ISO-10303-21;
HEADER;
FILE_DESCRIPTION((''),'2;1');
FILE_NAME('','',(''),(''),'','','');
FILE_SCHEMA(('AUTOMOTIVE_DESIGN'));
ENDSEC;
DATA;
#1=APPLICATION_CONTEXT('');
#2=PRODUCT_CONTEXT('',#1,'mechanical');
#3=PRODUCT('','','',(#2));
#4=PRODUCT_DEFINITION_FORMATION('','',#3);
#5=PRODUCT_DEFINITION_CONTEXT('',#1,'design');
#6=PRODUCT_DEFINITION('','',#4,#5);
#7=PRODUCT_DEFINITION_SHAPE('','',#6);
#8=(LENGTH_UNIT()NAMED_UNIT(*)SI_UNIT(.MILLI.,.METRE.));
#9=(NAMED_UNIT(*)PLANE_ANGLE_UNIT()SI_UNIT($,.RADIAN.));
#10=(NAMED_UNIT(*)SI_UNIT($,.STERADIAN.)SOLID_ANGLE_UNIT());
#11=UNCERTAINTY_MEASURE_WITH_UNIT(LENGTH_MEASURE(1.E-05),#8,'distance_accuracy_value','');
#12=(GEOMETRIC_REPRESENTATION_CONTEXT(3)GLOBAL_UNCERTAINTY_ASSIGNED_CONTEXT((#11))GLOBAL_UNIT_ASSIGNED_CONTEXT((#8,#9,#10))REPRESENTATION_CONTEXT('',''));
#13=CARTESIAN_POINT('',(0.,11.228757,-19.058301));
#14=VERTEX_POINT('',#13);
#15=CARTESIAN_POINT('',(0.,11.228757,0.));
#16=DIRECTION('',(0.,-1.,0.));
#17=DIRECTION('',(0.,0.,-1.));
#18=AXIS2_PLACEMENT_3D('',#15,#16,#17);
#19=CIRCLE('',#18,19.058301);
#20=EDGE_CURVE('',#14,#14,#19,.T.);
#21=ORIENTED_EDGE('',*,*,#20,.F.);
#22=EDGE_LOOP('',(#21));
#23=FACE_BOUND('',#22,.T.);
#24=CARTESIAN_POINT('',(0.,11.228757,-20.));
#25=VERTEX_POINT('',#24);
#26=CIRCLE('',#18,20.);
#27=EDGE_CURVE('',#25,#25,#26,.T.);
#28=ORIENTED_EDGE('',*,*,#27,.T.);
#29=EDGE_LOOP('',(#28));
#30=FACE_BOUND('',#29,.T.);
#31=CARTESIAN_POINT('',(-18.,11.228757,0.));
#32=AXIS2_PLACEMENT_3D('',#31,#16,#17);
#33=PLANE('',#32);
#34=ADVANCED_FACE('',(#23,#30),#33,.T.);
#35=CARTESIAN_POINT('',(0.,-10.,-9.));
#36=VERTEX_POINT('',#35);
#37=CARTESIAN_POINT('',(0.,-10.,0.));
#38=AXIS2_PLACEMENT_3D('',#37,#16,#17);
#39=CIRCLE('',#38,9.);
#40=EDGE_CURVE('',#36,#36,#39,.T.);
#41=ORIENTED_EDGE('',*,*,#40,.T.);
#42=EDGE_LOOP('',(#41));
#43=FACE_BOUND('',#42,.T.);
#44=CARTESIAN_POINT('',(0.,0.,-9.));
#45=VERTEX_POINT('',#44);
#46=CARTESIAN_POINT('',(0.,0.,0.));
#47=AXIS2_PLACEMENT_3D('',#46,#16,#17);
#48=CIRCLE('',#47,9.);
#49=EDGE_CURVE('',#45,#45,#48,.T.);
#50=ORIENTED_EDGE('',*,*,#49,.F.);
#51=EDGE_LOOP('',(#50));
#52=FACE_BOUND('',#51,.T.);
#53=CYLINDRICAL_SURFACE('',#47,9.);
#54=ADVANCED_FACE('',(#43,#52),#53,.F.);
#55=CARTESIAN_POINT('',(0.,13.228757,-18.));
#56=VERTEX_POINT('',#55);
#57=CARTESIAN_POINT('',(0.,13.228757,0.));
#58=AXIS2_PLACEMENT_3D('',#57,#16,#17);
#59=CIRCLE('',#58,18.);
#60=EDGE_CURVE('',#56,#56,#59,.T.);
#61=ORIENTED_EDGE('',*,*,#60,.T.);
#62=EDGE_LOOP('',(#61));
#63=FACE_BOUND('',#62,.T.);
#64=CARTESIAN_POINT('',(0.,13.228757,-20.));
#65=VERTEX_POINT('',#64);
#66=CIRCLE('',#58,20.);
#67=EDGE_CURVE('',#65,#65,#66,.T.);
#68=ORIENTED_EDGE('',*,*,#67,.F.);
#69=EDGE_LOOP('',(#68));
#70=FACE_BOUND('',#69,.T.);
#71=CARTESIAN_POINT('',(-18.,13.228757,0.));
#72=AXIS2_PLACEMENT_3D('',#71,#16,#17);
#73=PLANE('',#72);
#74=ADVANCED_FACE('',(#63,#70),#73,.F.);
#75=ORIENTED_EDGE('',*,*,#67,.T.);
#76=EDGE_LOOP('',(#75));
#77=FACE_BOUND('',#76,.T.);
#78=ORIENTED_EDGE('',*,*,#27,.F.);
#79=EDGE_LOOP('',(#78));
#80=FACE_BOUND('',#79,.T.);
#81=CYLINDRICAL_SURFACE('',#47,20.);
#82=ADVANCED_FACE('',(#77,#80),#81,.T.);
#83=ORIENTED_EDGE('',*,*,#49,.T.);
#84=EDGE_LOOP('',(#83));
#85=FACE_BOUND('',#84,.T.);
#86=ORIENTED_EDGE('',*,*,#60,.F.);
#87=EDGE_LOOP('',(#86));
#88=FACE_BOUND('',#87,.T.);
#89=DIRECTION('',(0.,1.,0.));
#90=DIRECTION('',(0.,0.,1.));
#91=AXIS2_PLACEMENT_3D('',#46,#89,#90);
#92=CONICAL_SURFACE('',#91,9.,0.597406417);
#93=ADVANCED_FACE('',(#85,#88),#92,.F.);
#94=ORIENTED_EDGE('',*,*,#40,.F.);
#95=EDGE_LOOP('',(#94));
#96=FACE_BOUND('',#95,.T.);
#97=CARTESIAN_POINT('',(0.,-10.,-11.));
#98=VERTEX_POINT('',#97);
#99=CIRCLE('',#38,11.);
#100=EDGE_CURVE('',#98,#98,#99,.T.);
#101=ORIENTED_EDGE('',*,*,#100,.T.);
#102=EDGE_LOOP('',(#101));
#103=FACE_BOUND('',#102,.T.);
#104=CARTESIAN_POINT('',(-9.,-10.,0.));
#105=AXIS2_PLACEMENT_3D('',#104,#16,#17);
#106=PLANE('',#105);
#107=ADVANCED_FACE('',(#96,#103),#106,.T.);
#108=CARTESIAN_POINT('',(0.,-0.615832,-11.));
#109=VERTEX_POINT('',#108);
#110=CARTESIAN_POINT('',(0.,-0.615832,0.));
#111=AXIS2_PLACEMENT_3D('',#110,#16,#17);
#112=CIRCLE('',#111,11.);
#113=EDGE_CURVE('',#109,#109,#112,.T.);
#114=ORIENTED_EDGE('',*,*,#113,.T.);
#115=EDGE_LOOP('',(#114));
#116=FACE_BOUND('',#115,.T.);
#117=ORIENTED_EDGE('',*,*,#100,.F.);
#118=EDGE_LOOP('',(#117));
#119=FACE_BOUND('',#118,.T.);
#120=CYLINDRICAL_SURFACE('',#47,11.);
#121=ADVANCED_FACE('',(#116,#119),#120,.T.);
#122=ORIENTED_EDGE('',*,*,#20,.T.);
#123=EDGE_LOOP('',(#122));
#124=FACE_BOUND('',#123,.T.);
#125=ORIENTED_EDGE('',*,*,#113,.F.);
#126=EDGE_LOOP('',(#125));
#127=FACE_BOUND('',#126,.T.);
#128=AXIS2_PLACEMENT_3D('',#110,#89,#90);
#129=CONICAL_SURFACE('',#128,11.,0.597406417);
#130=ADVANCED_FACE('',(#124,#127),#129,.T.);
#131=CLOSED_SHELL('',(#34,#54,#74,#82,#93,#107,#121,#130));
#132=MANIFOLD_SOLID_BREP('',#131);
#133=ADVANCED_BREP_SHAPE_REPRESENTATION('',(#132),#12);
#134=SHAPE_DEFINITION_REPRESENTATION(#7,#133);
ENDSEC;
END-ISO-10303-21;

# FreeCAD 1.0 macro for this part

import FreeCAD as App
import Part
import Sketcher

V = App.Vector

doc = App.newDocument("Part")
body = doc.addObject("PartDesign::Body", "Body")

# Sketch on XY plane
sketch1 = body.newObject("Sketcher::SketchObject", "Sketch")
sketch1.AttachmentSupport = (doc.getObject("XY_Plane"), [""])
sketch1.MapMode = "FlatFace"
sketch1.addGeometry([
    Part.LineSegment(V(-18, 13.228757, 0), V(-20, 13.228757, 0)),  # 0
    Part.LineSegment(V(-20, 13.228757, 0), V(-20, 11.228757, 0)),  # 1
    Part.LineSegment(V(-20, 11.228757, 0), V(-19.058301, 11.228757, 0)),  # 2
    Part.LineSegment(V(-19.058301, 11.228757, 0), V(-11, -0.615832, 0)),  # 3
    Part.LineSegment(V(-11, -0.615832, 0), V(-11, -10, 0)),  # 4
    Part.LineSegment(V(-11, -10, 0), V(-9, -10, 0)),  # 5
    Part.LineSegment(V(-9, -10, 0), V(-9, 0, 0)),  # 6
    Part.LineSegment(V(-9, 0, 0), V(-18, 13.228757, 0)),  # 7
], False)
sketch1.addConstraint([
    Sketcher.Constraint("Coincident", 0, 2, 1, 1),
    Sketcher.Constraint("Coincident", 1, 2, 2, 1),
    Sketcher.Constraint("Coincident", 2, 2, 3, 1),
    Sketcher.Constraint("Coincident", 3, 2, 4, 1),
    Sketcher.Constraint("Coincident", 4, 2, 5, 1),
    Sketcher.Constraint("Coincident", 5, 2, 6, 1),
    Sketcher.Constraint("Coincident", 6, 2, 7, 1),
    Sketcher.Constraint("Coincident", 7, 2, 0, 1),
    Sketcher.Constraint("Horizontal", 0),
    Sketcher.Constraint("Vertical", 1),
    Sketcher.Constraint("Horizontal", 2),
    Sketcher.Constraint("Vertical", 4),
    Sketcher.Constraint("Horizontal", 5),
    Sketcher.Constraint("Vertical", 6),
    Sketcher.Constraint("PointOnObject", 6, 2, -1),
    Sketcher.Constraint("Parallel", 3, 7),
    Sketcher.Constraint("Equal", 0, 5),
    Sketcher.Constraint("Equal", 5, 1),
    Sketcher.Constraint("DistanceX", 0, 2, 0, 1, 2.0),
    Sketcher.Constraint("DistanceY", 6, 1, 6, 2, 10.0),
    Sketcher.Constraint("Distance", 7, 16.0),
    Sketcher.Constraint("DistanceX", 0, 2, -1, 1, 20.0),
    Sketcher.Constraint("DistanceX", 3, 2, -1, 1, 11.0),
    Sketcher.Constraint("DistanceX", 2, 1, 2, 2, 0.941699),
])
revolution = body.newObject("PartDesign::Revolution", "Revolution")
revolution.Profile = sketch1
revolution.ReferenceAxis = (sketch1, ["V_Axis"])
revolution.Angle = 360

doc.recompute()
